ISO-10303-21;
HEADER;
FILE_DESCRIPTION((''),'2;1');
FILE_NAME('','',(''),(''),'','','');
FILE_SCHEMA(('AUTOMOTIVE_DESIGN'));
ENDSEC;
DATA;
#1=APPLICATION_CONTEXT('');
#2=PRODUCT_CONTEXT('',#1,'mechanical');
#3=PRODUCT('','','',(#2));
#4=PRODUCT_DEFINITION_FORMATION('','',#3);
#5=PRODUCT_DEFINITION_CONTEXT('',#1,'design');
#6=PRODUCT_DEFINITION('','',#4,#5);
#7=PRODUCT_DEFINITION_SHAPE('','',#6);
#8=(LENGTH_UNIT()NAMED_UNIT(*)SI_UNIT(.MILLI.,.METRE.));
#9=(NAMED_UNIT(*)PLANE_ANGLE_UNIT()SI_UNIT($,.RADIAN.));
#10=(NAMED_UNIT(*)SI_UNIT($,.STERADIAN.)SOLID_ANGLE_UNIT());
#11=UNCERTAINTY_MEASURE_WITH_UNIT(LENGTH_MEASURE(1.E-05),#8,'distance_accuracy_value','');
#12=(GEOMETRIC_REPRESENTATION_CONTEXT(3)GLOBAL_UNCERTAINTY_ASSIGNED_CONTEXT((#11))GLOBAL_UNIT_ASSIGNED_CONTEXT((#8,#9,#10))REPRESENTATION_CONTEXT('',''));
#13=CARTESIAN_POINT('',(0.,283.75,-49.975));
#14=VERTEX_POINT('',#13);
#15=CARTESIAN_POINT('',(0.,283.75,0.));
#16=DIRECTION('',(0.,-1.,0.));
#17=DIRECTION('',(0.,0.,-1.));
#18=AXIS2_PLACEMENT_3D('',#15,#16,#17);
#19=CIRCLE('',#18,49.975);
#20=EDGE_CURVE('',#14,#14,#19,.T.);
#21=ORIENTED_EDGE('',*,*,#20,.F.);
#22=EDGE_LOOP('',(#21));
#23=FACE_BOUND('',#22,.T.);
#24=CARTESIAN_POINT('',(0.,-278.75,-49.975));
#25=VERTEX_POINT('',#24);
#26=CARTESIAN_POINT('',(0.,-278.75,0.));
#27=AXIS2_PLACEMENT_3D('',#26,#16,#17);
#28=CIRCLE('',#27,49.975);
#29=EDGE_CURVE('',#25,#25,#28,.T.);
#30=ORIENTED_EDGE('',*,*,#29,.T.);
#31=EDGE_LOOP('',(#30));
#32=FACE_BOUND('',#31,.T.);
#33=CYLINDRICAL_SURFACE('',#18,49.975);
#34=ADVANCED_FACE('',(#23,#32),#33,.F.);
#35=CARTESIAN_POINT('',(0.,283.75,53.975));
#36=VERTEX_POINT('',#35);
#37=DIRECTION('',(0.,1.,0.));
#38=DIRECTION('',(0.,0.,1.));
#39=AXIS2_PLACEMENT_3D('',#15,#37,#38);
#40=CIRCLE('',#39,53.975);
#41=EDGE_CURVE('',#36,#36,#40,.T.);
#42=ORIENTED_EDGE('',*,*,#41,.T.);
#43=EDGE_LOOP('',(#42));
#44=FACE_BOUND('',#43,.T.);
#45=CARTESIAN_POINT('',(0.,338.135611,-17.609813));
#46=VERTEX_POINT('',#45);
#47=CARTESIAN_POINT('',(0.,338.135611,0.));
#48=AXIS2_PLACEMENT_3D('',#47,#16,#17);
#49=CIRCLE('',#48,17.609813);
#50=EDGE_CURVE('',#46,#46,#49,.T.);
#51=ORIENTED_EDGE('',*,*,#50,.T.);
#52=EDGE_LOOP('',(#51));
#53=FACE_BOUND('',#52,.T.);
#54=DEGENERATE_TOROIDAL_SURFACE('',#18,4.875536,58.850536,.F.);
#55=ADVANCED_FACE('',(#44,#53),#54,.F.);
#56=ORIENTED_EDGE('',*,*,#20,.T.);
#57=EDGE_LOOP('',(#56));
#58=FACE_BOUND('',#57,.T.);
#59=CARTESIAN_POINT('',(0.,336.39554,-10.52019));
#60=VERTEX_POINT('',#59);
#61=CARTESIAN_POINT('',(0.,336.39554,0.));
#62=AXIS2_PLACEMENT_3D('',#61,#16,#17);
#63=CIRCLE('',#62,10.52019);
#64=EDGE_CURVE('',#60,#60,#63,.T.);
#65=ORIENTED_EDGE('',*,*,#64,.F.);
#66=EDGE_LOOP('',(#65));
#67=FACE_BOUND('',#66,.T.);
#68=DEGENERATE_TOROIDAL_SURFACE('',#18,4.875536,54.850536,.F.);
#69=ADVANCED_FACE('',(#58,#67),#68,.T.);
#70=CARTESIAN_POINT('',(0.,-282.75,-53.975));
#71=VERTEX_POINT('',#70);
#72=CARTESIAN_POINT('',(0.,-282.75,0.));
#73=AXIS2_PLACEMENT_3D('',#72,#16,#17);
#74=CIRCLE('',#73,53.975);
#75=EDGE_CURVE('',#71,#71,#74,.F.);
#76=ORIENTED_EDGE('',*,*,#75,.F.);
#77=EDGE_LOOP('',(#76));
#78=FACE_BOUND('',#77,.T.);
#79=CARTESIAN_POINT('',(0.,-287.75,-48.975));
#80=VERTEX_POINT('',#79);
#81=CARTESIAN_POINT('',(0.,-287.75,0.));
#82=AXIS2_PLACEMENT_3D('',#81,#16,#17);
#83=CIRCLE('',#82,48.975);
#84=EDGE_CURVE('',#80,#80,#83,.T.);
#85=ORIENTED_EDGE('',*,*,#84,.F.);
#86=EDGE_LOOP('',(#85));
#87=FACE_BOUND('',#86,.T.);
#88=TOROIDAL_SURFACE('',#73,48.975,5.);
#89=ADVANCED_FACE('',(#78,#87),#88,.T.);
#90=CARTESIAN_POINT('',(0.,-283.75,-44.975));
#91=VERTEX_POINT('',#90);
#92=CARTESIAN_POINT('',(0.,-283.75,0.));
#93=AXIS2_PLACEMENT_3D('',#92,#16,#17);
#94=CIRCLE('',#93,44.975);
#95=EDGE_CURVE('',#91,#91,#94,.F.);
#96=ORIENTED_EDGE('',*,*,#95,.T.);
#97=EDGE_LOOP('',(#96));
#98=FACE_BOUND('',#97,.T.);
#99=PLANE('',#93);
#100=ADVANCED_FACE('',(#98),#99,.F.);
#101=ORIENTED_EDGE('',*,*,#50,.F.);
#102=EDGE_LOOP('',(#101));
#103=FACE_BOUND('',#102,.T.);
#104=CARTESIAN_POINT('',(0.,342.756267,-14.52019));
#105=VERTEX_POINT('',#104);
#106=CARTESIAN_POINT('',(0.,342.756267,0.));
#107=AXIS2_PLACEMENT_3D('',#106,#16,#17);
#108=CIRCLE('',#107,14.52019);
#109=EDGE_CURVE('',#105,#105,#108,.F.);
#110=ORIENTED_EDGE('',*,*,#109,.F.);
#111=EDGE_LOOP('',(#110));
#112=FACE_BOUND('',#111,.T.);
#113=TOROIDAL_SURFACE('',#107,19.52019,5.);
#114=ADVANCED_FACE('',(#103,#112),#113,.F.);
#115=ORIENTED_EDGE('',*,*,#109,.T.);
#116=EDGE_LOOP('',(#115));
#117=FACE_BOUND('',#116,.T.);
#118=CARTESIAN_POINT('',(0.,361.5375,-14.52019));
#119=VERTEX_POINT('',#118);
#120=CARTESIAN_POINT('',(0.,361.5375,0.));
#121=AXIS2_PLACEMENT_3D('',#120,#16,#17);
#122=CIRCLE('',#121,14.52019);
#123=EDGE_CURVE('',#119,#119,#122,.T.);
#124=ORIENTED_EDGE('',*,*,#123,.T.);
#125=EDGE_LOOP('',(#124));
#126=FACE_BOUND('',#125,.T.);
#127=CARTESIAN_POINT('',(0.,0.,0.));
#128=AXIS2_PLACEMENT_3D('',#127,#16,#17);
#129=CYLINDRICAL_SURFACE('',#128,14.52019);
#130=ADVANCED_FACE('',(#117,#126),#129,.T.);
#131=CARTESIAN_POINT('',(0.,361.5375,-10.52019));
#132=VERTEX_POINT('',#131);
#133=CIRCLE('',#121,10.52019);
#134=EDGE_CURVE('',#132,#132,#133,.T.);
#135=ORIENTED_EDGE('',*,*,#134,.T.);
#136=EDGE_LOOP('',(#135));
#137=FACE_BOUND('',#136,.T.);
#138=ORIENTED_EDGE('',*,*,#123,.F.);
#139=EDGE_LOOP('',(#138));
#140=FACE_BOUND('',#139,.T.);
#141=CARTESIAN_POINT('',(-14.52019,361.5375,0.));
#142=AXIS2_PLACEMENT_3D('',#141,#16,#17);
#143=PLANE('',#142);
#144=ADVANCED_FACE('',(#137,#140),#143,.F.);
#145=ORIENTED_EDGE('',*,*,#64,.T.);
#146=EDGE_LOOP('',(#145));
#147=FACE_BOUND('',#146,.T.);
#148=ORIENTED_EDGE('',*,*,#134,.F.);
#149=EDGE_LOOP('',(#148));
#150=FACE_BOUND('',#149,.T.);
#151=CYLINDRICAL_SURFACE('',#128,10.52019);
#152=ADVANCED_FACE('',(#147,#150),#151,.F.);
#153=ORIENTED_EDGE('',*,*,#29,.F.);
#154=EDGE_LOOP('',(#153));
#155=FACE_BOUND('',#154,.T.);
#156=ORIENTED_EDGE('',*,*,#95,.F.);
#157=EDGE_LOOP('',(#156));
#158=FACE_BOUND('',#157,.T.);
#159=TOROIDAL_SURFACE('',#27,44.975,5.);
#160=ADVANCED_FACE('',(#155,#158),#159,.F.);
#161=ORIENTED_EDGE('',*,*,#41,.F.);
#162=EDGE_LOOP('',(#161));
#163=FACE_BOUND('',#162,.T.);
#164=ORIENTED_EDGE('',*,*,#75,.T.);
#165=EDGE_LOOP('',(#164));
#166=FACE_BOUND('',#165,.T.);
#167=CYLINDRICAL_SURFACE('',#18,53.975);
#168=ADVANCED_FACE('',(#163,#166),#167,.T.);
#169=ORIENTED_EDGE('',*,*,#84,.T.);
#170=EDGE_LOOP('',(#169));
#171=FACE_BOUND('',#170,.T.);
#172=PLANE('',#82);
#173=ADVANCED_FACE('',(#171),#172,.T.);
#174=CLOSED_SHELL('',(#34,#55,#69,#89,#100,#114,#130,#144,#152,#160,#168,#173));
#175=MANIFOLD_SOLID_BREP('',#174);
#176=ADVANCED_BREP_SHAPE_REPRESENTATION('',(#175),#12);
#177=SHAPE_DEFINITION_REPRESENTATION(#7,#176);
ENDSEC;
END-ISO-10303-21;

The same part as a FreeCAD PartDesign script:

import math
import FreeCAD as App
import Part
import Sketcher
from FreeCAD import Vector
Q = App.Units.Quantity


def edges_at(feature, points):
    """Names of the edges that pass closest to the given points."""
    edges = feature.Shape.Edges
    near = lambda p: min(range(len(edges)), key=lambda i: edges[i].distToShape(Part.Vertex(*p))[0])
    return sorted({f"Edge{near(p) + 1}" for p in points})

doc = App.newDocument("Part")
body = doc.addObject("PartDesign::Body", "Body")

sketch1 = body.newObject("Sketcher::SketchObject", "Sketch")
sketch1.AttachmentSupport = (doc.getObject("XZ_Plane"), [""])
sketch1.MapMode = "FlatFace"
sketch1.addGeometry([
    Part.Circle(Vector(0, 0, 0), Vector(0, 0, 1), 53.975),
    Part.Circle(Vector(0, 0, 0), Vector(0, 0, 1), 49.975),
], False)
sketch1.addConstraint([
    Sketcher.Constraint("Coincident", 0, 3, -1, 1),
    Sketcher.Constraint("Coincident", 1, 3, -1, 1),
    Sketcher.Constraint("Diameter", 0, Q("107.95 mm")),
    Sketcher.Constraint("Diameter", 1, Q("99.95 mm")),
])
pad1 = body.newObject("PartDesign::Pad", "Pad")
pad1.Profile = sketch1
pad1.Length = 567.5
pad1.Midplane = True

sketch2 = body.newObject("Sketcher::SketchObject", "Sketch001")
sketch2.AttachmentSupport = (doc.getObject("XZ_Plane"), [""])
sketch2.MapMode = "FlatFace"
sketch2.AttachmentOffset = App.Placement(Vector(0, 0, 283.75), App.Rotation())
sketch2.addGeometry(Part.Circle(Vector(0, 0, 0), Vector(0, 0, 1), 53.975), False)
sketch2.addConstraint([
    Sketcher.Constraint("Coincident", 0, 3, -1, 1),
    Sketcher.Constraint("Diameter", 0, Q("107.95 mm")),
])
pad2 = body.newObject("PartDesign::Pad", "Pad001")
pad2.Profile = sketch2
pad2.Length = 4

sketch3 = body.newObject("Sketcher::SketchObject", "Sketch002")
sketch3.AttachmentSupport = (doc.getObject("XY_Plane"), [""])
sketch3.MapMode = "FlatFace"
sketch3.addGeometry([
    Part.LineSegment(Vector(-14.52019, 361.5375, 0), Vector(-14.52019, 339.3125, 0)),
    Part.ArcOfCircle(Part.Circle(Vector(4.875536, 283.75, 0), Vector(0, 0, 1), 58.850536), math.radians(109.243045), math.radians(180)),
    Part.LineSegment(Vector(-53.975, 283.75, 0), Vector(-49.975, 283.75, 0)),
    Part.ArcOfCircle(Part.Circle(Vector(4.875536, 283.75, 0), Vector(0, 0, 1), 54.850536), math.radians(106.301096), math.radians(180)),
    Part.LineSegment(Vector(-10.52019, 336.39554, 0), Vector(-10.52019, 361.5375, 0)),
    Part.LineSegment(Vector(-10.52019, 361.5375, 0), Vector(-14.52019, 361.5375, 0)),
], False)
sketch3.addConstraint([
    Sketcher.Constraint("Coincident", 0, 2, 1, 1),
    Sketcher.Constraint("Coincident", 1, 2, 2, 1),
    Sketcher.Constraint("Coincident", 2, 2, 3, 2),
    Sketcher.Constraint("Coincident", 3, 1, 4, 1),
    Sketcher.Constraint("Coincident", 4, 2, 5, 1),
    Sketcher.Constraint("Coincident", 5, 2, 0, 1),
    Sketcher.Constraint("Vertical", 0),
    Sketcher.Constraint("Horizontal", 2),
    Sketcher.Constraint("Vertical", 4),
    Sketcher.Constraint("Horizontal", 5),
    Sketcher.Constraint("Coincident", 3, 3, 1, 3),
    Sketcher.Constraint("Horizontal", 3, 3, 1, 2),
    Sketcher.Constraint("Equal", 2, 5),
    Sketcher.Constraint("DistanceX", 2, 1, 2, 2, Q("4 mm")),
    Sketcher.Constraint("DistanceY", 0, 2, 0, 1, Q("22.225 mm")),
    Sketcher.Constraint("DistanceY", -1, 1, 1, 3, Q("283.75 mm")),
    Sketcher.Constraint("DistanceX", 1, 2, -1, 1, Q("53.975 mm")),
    Sketcher.Constraint("Radius", 1, Q("58.850536 mm")),
    Sketcher.Constraint("DistanceY", 4, 1, 4, 2, Q("25.14196 mm")),
])
revolution = body.newObject("PartDesign::Revolution", "Revolution")
revolution.Profile = sketch3
revolution.ReferenceAxis = (sketch3, ["V_Axis"])
revolution.Angle = 360
doc.recompute()

fillet = body.newObject("PartDesign::Fillet", "Fillet")
fillet.Base = (revolution, edges_at(revolution, [(0, -287.75, 53.975), (0, 339.312, 14.52), (0, -283.75, -49.975)]))
fillet.Radius = 5

doc.recompute()
